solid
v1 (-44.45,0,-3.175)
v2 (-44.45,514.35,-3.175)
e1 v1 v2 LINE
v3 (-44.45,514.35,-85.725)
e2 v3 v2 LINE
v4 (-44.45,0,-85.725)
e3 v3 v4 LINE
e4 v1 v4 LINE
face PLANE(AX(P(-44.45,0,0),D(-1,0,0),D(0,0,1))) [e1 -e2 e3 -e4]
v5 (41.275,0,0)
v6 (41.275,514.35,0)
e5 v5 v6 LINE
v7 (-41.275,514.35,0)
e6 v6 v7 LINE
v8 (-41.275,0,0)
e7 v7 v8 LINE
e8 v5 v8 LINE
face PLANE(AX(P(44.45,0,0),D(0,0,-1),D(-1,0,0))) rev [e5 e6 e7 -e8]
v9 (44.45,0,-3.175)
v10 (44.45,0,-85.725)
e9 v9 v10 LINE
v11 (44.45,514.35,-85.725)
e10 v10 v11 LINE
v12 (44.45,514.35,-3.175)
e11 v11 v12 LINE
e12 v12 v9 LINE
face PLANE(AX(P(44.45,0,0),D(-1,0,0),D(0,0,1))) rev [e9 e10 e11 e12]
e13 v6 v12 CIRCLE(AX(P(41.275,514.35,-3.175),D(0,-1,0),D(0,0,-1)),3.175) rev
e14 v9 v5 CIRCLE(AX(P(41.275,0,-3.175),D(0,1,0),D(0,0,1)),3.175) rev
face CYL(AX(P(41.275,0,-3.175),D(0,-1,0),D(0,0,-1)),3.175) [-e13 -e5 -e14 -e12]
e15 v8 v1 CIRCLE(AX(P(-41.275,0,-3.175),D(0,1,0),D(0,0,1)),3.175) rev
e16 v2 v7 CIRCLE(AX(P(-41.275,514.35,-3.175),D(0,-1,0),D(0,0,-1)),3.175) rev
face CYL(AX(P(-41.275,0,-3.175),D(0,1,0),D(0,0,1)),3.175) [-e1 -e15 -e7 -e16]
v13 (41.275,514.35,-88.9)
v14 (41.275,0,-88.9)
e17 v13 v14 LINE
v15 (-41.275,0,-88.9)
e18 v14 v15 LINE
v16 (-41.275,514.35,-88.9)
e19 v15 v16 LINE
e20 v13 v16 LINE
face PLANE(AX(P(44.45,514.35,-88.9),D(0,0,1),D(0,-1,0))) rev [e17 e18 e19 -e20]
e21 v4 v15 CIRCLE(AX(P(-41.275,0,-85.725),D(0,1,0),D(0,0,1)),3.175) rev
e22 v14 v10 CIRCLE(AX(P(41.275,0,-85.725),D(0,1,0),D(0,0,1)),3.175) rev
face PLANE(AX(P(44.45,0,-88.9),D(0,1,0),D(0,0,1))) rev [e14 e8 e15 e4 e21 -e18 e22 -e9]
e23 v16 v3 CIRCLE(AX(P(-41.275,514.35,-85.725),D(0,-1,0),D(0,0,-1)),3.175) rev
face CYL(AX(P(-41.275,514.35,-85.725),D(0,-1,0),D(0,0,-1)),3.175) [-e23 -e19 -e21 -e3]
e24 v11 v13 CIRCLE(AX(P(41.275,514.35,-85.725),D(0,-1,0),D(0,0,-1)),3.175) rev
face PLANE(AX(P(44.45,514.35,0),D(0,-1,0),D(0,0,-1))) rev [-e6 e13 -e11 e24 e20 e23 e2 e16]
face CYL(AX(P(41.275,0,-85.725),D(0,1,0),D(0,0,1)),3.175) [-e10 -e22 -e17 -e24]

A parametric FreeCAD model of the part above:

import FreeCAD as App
import Part
import Sketcher
from FreeCAD import Vector
Q = App.Units.Quantity


def edges_at(feature, points):
    """Names of the edges that pass closest to the given points."""
    edges = feature.Shape.Edges
    near = lambda p: min(range(len(edges)), key=lambda i: edges[i].distToShape(Part.Vertex(*p))[0])
    return sorted({f"Edge{near(p) + 1}" for p in points})

doc = App.newDocument("Part")
body = doc.addObject("PartDesign::Body", "Body")

# Sketch on YZ plane
sketch1 = doc.addObject("Sketcher::SketchObject", "Sketch")
body.addObject(sketch1)
sketch1.AttachmentSupport = (doc.YZ_Plane, [""])
sketch1.MapMode = "FlatFace"
sketch1.addGeometry([
    Part.LineSegment(Vector(514.35, 0, 0), Vector(0, 0, 0)),
    Part.LineSegment(Vector(0, 0, 0), Vector(0, -88.9, 0)),
    Part.LineSegment(Vector(0, -88.9, 0), Vector(514.35, -88.9, 0)),
    Part.LineSegment(Vector(514.35, -88.9, 0), Vector(514.35, 0, 0)),
], False)
sketch1.addConstraint([
    Sketcher.Constraint("Coincident", 0, 2, 1, 1),
    Sketcher.Constraint("Coincident", 1, 2, 2, 1),
    Sketcher.Constraint("Coincident", 2, 2, 3, 1),
    Sketcher.Constraint("Coincident", 3, 2, 0, 1),
    Sketcher.Constraint("Horizontal", 0),
    Sketcher.Constraint("Vertical", 1),
    Sketcher.Constraint("Horizontal", 2),
    Sketcher.Constraint("Vertical", 3),
    Sketcher.Constraint("Coincident", 0, 2, -1, 1),
    Sketcher.Constraint("DistanceY", 1, 2, 1, 1, Q("3.5 in")),
    Sketcher.Constraint("DistanceX", 0, 2, 0, 1, Q("20.25 in")),
])
pad1 = doc.addObject("PartDesign::Pad", "Pad")
body.addObject(pad1)
pad1.Profile = sketch1
pad1.Length = Q("3.5 in")
pad1.Midplane = True
doc.recompute()

fillet = doc.addObject("PartDesign::Fillet", "Fillet")
body.addObject(fillet)
fillet.Base = (pad1, edges_at(pad1, [
    (44.45, 257.175, 0),
    (-44.45, 257.175, 0),
    (-44.45, 257.175, -88.9),
    (44.45, 257.175, -88.9),
]))
fillet.Radius = Q("0.125 in")

doc.recompute()
